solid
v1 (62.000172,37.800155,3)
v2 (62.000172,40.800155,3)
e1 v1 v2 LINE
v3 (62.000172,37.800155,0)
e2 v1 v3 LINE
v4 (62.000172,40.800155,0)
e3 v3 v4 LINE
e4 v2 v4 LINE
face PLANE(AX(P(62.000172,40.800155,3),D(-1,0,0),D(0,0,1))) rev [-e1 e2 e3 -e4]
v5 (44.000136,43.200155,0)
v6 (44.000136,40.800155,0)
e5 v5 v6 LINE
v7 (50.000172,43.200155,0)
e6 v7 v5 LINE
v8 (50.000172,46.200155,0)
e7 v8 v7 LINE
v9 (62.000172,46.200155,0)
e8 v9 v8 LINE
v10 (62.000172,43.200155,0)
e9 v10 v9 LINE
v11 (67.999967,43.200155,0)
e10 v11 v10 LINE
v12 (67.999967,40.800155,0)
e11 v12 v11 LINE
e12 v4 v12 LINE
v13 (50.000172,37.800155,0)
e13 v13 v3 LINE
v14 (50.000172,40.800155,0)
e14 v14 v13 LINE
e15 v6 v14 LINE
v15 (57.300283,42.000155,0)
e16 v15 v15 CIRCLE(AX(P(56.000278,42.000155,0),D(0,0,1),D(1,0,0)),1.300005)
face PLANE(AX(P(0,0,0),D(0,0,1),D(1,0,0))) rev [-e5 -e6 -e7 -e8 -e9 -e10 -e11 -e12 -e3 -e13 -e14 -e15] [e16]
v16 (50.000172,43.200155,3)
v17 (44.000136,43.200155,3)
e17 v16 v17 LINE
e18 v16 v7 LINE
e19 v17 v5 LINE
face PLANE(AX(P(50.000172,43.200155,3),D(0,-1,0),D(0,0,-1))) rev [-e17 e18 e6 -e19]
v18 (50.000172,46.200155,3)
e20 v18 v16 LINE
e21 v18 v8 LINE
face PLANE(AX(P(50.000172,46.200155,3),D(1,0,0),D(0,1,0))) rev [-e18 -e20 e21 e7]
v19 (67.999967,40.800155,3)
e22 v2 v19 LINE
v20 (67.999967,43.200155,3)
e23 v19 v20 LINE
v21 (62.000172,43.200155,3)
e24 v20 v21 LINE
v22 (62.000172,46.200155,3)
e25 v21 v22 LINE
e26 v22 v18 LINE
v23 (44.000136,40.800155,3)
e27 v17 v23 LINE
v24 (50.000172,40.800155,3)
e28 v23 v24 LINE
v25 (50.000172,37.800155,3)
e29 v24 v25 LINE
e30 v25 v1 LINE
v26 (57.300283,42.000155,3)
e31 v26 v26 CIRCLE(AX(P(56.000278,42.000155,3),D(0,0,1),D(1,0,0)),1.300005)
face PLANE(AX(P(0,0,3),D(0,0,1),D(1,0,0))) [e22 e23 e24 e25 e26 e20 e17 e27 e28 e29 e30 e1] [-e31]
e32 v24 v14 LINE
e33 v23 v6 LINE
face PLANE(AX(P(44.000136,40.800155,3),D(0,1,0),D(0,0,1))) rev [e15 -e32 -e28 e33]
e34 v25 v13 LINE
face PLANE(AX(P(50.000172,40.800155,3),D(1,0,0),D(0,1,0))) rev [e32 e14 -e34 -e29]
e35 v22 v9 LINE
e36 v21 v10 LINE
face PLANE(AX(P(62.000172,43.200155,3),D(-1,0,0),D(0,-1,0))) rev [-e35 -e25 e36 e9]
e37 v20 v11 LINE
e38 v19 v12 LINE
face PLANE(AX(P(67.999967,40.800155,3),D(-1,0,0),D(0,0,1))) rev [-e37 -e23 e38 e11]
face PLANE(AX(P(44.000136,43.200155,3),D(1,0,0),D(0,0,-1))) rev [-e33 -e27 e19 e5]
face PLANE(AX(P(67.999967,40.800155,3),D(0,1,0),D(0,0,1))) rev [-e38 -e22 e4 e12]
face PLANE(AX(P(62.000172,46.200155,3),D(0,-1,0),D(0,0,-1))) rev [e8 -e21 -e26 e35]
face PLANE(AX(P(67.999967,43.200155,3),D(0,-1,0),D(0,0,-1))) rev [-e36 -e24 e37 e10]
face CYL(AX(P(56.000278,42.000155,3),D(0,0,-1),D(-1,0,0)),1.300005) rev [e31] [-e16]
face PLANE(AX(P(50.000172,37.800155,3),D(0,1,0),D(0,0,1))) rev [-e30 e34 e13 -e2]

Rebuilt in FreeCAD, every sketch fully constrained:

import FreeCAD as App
import Part
import Sketcher

doc = App.newDocument("Part")
body = doc.addObject("PartDesign::Body", "Body")

# Sketch on XY plane
sketch1 = doc.addObject("Sketcher::SketchObject", "Sketch")
body.addObject(sketch1)
sketch1.AttachmentSupport = (doc.XY_Plane, [""])
sketch1.MapMode = "FlatFace"
sketch1.addGeometry([
    Part.LineSegment(App.Vector(50, 37.8, 0), App.Vector(62, 37.8, 0)),  # 0
    Part.LineSegment(App.Vector(62, 37.8, 0), App.Vector(62, 40.8, 0)),  # 1
    Part.LineSegment(App.Vector(62, 40.8, 0), App.Vector(68, 40.8, 0)),  # 2
    Part.LineSegment(App.Vector(68, 40.8, 0), App.Vector(68, 43.2, 0)),  # 3
    Part.LineSegment(App.Vector(68, 43.2, 0), App.Vector(62, 43.2, 0)),  # 4
    Part.LineSegment(App.Vector(62, 43.2, 0), App.Vector(62, 46.2, 0)),  # 5
    Part.LineSegment(App.Vector(62, 46.2, 0), App.Vector(50, 46.2, 0)),  # 6
    Part.LineSegment(App.Vector(50, 46.2, 0), App.Vector(50, 43.2, 0)),  # 7
    Part.LineSegment(App.Vector(50, 43.2, 0), App.Vector(44, 43.2, 0)),  # 8
    Part.LineSegment(App.Vector(44, 43.2, 0), App.Vector(44, 40.8, 0)),  # 9
    Part.LineSegment(App.Vector(44, 40.8, 0), App.Vector(50, 40.8, 0)),  # 10
    Part.LineSegment(App.Vector(50, 40.8, 0), App.Vector(50, 37.8, 0)),  # 11
    Part.Circle(App.Vector(56, 42, 0), App.Vector(0, 0, 1), 1.3),  # 12
], False)
sketch1.addConstraint([
    Sketcher.Constraint("Coincident", 0, 2, 1, 1),
    Sketcher.Constraint("Coincident", 1, 2, 2, 1),
    Sketcher.Constraint("Coincident", 2, 2, 3, 1),
    Sketcher.Constraint("Coincident", 3, 2, 4, 1),
    Sketcher.Constraint("Coincident", 4, 2, 5, 1),
    Sketcher.Constraint("Coincident", 5, 2, 6, 1),
    Sketcher.Constraint("Coincident", 6, 2, 7, 1),
    Sketcher.Constraint("Coincident", 7, 2, 8, 1),
    Sketcher.Constraint("Coincident", 8, 2, 9, 1),
    Sketcher.Constraint("Coincident", 9, 2, 10, 1),
    Sketcher.Constraint("Coincident", 10, 2, 11, 1),
    Sketcher.Constraint("Coincident", 11, 2, 0, 1),
    Sketcher.Constraint("Horizontal", 0),
    Sketcher.Constraint("Vertical", 1),
    Sketcher.Constraint("Horizontal", 2),
    Sketcher.Constraint("Vertical", 3),
    Sketcher.Constraint("Horizontal", 4),
    Sketcher.Constraint("Vertical", 5),
    Sketcher.Constraint("Horizontal", 6),
    Sketcher.Constraint("Vertical", 7),
    Sketcher.Constraint("Horizontal", 8),
    Sketcher.Constraint("Vertical", 9),
    Sketcher.Constraint("Horizontal", 10),
    Sketcher.Constraint("Vertical", 11),
    Sketcher.Constraint("Horizontal", 4, 2, 7, 2),
    Sketcher.Constraint("Horizontal", 2, 2, 9, 2),
    Sketcher.Constraint("Vertical", 1, 2, 4, 2),
    Sketcher.Constraint("Vertical", 7, 2, 10, 2),
    Sketcher.Constraint("Equal", 1, 5),
    Sketcher.Constraint("DistanceX", 0, 1, 0, 2, 12.0),
    Sketcher.Constraint("DistanceY", 1, 1, 1, 2, 3.0),
    Sketcher.Constraint("DistanceY", 3, 1, 3, 2, 2.4),
    Sketcher.Constraint("DistanceY", 0, 2, 12, 3, 4.2),
    Sketcher.Constraint("Diameter", 12, 2.60001),
    Sketcher.Constraint("DistanceX", 2, 1, 2, 2, 5.999795),
    Sketcher.Constraint("DistanceX", 8, 2, 8, 1, 6.000035),
    Sketcher.Constraint("DistanceX", -1, 1, 0, 2, 62.000172),
    Sketcher.Constraint("DistanceX", 12, 3, 2, 2, 11.999689),
    Sketcher.Constraint("DistanceY", -1, 1, 12, 3, 42.000155),
])
pad1 = doc.addObject("PartDesign::Pad", "Pad")
body.addObject(pad1)
pad1.Profile = sketch1
pad1.Length = 3

doc.recompute()
